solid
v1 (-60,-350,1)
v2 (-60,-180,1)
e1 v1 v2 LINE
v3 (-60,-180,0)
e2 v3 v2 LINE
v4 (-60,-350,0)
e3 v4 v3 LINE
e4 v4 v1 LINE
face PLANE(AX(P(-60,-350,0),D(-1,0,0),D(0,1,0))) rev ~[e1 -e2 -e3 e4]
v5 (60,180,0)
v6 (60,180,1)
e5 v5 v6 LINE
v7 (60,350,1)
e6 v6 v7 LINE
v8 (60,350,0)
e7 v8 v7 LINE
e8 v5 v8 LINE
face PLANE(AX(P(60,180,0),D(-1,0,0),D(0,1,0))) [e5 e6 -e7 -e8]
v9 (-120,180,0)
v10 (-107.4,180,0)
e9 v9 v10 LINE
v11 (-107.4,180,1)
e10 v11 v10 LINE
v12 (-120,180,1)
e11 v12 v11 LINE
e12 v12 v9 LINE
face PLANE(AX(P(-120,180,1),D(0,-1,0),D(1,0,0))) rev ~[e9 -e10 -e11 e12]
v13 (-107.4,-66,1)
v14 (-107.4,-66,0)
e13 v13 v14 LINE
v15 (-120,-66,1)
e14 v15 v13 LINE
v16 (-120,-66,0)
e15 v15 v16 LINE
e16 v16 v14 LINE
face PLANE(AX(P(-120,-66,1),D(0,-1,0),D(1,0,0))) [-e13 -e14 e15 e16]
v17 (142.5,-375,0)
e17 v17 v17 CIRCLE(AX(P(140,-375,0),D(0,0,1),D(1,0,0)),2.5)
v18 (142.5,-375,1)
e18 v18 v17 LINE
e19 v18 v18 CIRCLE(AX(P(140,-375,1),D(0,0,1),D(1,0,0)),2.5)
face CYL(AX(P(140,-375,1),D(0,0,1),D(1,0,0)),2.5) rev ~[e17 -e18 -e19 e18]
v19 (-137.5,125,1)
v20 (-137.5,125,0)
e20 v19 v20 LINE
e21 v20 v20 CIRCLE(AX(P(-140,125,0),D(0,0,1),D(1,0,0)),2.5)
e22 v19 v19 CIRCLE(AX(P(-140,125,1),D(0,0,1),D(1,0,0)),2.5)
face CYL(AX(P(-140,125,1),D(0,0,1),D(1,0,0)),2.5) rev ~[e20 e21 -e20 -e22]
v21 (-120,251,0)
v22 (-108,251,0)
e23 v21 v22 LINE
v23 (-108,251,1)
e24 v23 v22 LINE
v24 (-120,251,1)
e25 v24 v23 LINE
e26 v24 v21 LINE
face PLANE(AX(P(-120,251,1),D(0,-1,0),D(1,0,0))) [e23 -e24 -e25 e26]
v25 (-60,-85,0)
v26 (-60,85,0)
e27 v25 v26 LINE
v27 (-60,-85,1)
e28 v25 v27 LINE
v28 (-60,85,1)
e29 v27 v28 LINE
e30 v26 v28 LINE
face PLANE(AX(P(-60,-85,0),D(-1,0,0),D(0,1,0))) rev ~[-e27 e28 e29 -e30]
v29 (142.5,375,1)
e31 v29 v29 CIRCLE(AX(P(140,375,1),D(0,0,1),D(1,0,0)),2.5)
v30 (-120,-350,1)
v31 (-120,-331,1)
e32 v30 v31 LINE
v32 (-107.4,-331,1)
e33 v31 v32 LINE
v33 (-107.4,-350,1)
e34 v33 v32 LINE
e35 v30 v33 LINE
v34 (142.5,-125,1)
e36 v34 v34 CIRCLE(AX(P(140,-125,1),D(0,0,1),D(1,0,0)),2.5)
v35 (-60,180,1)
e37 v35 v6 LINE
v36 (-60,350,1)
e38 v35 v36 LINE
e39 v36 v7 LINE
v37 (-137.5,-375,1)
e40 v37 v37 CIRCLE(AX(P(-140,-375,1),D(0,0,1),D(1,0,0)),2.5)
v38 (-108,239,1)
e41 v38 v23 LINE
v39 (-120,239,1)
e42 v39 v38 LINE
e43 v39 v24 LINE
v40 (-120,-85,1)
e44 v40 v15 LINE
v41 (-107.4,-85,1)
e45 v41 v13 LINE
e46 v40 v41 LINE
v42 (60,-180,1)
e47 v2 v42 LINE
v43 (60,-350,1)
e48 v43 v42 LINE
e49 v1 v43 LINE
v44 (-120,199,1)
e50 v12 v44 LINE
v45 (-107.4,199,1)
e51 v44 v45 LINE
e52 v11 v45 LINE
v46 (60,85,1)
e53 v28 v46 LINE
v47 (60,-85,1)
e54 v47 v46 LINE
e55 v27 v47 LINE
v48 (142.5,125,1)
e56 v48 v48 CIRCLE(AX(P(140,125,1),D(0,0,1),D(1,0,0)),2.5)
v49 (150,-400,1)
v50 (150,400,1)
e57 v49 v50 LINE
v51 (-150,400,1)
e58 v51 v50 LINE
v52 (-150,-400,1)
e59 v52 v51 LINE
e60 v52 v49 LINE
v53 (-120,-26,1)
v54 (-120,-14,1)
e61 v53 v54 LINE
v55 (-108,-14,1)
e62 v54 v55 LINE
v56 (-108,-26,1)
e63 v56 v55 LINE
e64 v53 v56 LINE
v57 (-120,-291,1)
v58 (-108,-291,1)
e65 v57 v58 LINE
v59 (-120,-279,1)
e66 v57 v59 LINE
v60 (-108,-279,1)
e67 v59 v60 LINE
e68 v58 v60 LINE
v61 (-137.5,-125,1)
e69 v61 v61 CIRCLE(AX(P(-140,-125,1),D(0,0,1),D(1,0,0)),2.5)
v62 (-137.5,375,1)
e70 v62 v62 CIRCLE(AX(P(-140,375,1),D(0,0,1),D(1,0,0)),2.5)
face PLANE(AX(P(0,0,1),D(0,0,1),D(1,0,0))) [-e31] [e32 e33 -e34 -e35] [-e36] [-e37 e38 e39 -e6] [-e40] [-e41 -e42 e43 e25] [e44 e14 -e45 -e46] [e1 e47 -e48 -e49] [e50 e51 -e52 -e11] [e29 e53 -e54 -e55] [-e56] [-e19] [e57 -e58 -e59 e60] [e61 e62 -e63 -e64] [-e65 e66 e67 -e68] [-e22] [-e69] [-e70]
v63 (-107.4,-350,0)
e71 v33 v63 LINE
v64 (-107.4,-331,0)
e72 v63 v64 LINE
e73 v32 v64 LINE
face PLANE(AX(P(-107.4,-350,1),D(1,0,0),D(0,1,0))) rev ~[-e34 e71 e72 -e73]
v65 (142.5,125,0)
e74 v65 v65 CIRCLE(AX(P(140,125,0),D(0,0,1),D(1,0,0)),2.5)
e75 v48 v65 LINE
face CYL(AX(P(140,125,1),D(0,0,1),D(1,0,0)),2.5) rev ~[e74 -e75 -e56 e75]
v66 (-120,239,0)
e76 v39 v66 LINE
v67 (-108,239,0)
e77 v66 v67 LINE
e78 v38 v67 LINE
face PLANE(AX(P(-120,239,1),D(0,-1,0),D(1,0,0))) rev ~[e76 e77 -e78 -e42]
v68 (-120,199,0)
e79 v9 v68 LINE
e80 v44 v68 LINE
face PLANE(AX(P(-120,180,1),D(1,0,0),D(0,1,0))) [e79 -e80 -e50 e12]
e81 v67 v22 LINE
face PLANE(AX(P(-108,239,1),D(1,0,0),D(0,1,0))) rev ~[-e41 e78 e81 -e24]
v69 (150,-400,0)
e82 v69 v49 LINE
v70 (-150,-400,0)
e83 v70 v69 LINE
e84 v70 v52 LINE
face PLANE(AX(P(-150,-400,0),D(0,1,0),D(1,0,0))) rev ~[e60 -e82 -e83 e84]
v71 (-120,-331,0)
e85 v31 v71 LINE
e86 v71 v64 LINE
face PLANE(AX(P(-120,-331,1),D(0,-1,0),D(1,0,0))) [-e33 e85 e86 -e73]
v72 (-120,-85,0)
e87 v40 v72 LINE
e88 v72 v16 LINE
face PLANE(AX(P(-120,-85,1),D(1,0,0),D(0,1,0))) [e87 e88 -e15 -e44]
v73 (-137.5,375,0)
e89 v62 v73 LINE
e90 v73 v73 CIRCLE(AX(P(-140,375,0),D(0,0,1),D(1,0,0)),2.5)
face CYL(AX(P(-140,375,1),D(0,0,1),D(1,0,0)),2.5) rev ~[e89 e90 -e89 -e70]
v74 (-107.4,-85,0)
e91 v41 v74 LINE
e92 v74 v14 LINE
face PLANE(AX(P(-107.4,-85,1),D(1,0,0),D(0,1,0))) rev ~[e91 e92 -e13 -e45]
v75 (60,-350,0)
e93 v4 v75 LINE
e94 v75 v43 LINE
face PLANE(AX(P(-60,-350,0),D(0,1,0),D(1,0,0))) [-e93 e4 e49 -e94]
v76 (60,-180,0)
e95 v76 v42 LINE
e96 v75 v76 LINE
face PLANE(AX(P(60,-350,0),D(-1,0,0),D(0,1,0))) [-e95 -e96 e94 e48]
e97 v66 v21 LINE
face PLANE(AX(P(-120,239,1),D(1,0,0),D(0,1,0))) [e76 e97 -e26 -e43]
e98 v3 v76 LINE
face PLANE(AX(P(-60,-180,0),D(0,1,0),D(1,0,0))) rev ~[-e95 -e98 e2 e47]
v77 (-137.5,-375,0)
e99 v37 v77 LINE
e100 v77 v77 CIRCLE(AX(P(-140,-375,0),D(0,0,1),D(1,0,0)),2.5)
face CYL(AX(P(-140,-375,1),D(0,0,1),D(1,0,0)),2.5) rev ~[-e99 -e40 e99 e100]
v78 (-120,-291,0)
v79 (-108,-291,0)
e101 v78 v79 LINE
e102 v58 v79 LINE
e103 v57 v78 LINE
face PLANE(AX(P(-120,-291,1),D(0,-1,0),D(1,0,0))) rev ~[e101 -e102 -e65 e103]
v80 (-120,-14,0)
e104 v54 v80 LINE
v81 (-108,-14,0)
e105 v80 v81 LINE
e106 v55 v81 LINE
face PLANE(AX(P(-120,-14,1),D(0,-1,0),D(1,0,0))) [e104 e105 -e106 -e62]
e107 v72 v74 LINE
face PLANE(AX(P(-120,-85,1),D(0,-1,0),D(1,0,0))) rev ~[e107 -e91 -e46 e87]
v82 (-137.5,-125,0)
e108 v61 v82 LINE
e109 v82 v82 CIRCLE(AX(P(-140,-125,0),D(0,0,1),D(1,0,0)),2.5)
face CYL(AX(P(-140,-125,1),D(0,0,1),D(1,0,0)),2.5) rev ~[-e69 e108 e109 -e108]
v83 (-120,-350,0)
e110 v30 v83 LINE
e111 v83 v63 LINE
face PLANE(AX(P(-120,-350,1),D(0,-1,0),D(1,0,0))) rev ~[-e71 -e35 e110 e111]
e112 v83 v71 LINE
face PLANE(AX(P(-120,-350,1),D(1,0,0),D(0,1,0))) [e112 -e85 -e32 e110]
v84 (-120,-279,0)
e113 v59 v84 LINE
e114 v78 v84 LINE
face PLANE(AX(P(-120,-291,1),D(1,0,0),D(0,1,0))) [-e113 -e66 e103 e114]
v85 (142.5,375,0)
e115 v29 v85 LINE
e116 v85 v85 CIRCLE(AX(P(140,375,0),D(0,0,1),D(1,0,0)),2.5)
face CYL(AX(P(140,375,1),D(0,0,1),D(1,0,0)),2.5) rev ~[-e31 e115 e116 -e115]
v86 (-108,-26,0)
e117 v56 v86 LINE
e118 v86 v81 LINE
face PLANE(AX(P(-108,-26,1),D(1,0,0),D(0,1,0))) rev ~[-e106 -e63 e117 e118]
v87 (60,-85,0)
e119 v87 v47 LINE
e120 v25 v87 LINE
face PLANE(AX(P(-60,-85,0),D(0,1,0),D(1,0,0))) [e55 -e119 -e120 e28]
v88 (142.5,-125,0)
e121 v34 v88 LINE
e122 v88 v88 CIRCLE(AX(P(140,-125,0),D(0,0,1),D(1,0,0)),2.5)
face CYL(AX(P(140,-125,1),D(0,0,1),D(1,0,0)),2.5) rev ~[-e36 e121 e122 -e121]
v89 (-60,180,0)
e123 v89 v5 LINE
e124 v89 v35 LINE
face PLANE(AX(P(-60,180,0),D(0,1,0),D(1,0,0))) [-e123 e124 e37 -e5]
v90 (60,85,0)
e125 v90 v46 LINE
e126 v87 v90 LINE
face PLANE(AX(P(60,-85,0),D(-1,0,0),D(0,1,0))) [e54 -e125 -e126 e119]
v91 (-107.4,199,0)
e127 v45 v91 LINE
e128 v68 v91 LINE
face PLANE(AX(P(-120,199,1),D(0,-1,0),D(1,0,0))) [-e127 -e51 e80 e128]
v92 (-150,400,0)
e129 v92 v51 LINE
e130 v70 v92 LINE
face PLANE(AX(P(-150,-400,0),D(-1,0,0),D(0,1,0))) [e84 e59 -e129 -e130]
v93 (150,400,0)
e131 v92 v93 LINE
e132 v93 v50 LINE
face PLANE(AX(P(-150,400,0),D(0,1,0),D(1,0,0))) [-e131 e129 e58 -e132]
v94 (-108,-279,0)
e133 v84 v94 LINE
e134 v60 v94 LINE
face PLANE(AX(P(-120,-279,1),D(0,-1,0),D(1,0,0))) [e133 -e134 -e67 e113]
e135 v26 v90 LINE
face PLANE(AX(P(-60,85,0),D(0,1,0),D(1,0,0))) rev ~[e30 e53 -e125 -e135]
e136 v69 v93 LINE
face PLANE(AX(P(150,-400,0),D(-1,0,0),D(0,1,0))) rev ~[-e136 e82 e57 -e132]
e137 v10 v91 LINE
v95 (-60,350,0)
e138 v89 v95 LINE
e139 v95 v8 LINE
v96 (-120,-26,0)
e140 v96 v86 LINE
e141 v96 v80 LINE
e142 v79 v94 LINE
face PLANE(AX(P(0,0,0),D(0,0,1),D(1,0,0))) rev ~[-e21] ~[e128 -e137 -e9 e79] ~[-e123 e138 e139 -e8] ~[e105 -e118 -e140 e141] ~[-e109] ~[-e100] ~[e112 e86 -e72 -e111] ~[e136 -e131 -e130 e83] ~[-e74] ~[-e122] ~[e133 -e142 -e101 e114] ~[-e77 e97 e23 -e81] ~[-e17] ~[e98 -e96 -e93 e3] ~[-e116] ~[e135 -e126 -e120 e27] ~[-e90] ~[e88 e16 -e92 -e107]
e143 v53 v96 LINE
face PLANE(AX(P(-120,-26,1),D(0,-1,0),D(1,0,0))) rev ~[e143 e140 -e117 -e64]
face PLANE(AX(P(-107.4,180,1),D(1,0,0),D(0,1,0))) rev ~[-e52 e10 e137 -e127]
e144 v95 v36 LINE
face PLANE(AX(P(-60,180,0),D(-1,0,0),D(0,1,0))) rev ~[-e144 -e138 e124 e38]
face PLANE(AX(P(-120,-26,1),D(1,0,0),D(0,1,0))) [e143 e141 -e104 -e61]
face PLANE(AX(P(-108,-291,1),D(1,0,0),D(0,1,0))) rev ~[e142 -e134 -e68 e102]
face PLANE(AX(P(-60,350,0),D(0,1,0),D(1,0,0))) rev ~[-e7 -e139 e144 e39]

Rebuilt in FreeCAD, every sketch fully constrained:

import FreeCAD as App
import Part
import Sketcher

V = App.Vector

doc = App.newDocument("Part")
body = doc.addObject("PartDesign::Body", "Body")

# Sketch on XY plane
sketch1 = body.newObject("Sketcher::SketchObject", "Sketch")
sketch1.AttachmentSupport = (doc.getObject("XY_Plane"), [""])
sketch1.MapMode = "FlatFace"
sketch1.addGeometry([
    Part.LineSegment(V(-150, 400, 0), V(-150, -400, 0)),  # 0
    Part.LineSegment(V(-150, -400, 0), V(150, -400, 0)),  # 1
    Part.LineSegment(V(150, -400, 0), V(150, 400, 0)),  # 2
    Part.LineSegment(V(150, 400, 0), V(-150, 400, 0)),  # 3
    Part.LineSegment(V(60, -350, 0), V(-60, -350, 0)),  # 4
    Part.LineSegment(V(-60, -350, 0), V(-60, -180, 0)),  # 5
    Part.LineSegment(V(-60, -180, 0), V(60, -180, 0)),  # 6
    Part.LineSegment(V(60, -180, 0), V(60, -350, 0)),  # 7
    Part.LineSegment(V(60, -85, 0), V(-60, -85, 0)),  # 8
    Part.LineSegment(V(-60, -85, 0), V(-60, 85, 0)),  # 9
    Part.LineSegment(V(-60, 85, 0), V(60, 85, 0)),  # 10
    Part.LineSegment(V(60, 85, 0), V(60, -85, 0)),  # 11
    Part.LineSegment(V(60, 180, 0), V(-60, 180, 0)),  # 12
    Part.LineSegment(V(-60, 180, 0), V(-60, 350, 0)),  # 13
    Part.LineSegment(V(-60, 350, 0), V(60, 350, 0)),  # 14
    Part.LineSegment(V(60, 350, 0), V(60, 180, 0)),  # 15
], False)
sketch1.addConstraint([
    Sketcher.Constraint("Coincident", 0, 2, 1, 1),
    Sketcher.Constraint("Coincident", 1, 2, 2, 1),
    Sketcher.Constraint("Coincident", 2, 2, 3, 1),
    Sketcher.Constraint("Coincident", 3, 2, 0, 1),
    Sketcher.Constraint("Coincident", 4, 2, 5, 1),
    Sketcher.Constraint("Coincident", 5, 2, 6, 1),
    Sketcher.Constraint("Coincident", 6, 2, 7, 1),
    Sketcher.Constraint("Coincident", 7, 2, 4, 1),
    Sketcher.Constraint("Coincident", 8, 2, 9, 1),
    Sketcher.Constraint("Coincident", 9, 2, 10, 1),
    Sketcher.Constraint("Coincident", 10, 2, 11, 1),
    Sketcher.Constraint("Coincident", 11, 2, 8, 1),
    Sketcher.Constraint("Coincident", 12, 2, 13, 1),
    Sketcher.Constraint("Coincident", 13, 2, 14, 1),
    Sketcher.Constraint("Coincident", 14, 2, 15, 1),
    Sketcher.Constraint("Coincident", 15, 2, 12, 1),
    Sketcher.Constraint("Vertical", 0),
    Sketcher.Constraint("Horizontal", 1),
    Sketcher.Constraint("Vertical", 2),
    Sketcher.Constraint("Horizontal", 3),
    Sketcher.Constraint("Horizontal", 4),
    Sketcher.Constraint("Vertical", 5),
    Sketcher.Constraint("Horizontal", 6),
    Sketcher.Constraint("Vertical", 7),
    Sketcher.Constraint("Horizontal", 8),
    Sketcher.Constraint("Vertical", 9),
    Sketcher.Constraint("Horizontal", 10),
    Sketcher.Constraint("Vertical", 11),
    Sketcher.Constraint("Horizontal", 12),
    Sketcher.Constraint("Vertical", 13),
    Sketcher.Constraint("Horizontal", 14),
    Sketcher.Constraint("Vertical", 15),
    Sketcher.Constraint("Symmetric", 0, 2, 2, 2, -1, 1),
    Sketcher.Constraint("Symmetric", 8, 2, 10, 2, -1, 1),
    Sketcher.Constraint("Symmetric", 6, 2, 12, 2, -1, 1),
    Sketcher.Constraint("Symmetric", 4, 2, 14, 2, -1, 1),
    Sketcher.Constraint("Vertical", 5, 2, 8, 2),
    Sketcher.Constraint("Vertical", 7, 2, 10, 2),
    Sketcher.Constraint("Equal", 7, 9),
    Sketcher.Constraint("DistanceX", 1, 1, 1, 2, 300.0),
    Sketcher.Constraint("DistanceX", 4, 2, 4, 1, 120.0),
    Sketcher.Constraint("DistanceY", 0, 2, 0, 1, 800.0),
    Sketcher.Constraint("DistanceY", 5, 1, 5, 2, 170.0),
    Sketcher.Constraint("DistanceY", 4, 2, -1, 1, 350.0),
])
pad1 = body.newObject("PartDesign::Pad", "Pad")
pad1.Profile = sketch1
pad1.Length = 1

# Sketch on XY plane
sketch2 = body.newObject("Sketcher::SketchObject", "Sketch001")
sketch2.AttachmentSupport = (doc.getObject("XY_Plane"), [""])
sketch2.MapMode = "FlatFace"
sketch2.AttachmentOffset = App.Placement(V(0, 0, 1), App.Rotation())
sketch2.addGeometry([
    Part.Circle(V(140, 375, 0), V(0, 0, 1), 2.5),  # 0
    Part.Circle(V(-140, 375, 0), V(0, 0, 1), 2.5),  # 1
    Part.Circle(V(-140, 125, 0), V(0, 0, 1), 2.5),  # 2
    Part.Circle(V(-140, -125, 0), V(0, 0, 1), 2.5),  # 3
    Part.Circle(V(-140, -375, 0), V(0, 0, 1), 2.5),  # 4
    Part.Circle(V(140, 125, 0), V(0, 0, 1), 2.5),  # 5
    Part.Circle(V(140, -125, 0), V(0, 0, 1), 2.5),  # 6
    Part.Circle(V(140, -375, 0), V(0, 0, 1), 2.5),  # 7
], False)
sketch2.addConstraint([
    Sketcher.Constraint("Equal", 0, 1),
    Sketcher.Constraint("Equal", 1, 2),
    Sketcher.Constraint("Equal", 2, 3),
    Sketcher.Constraint("Equal", 3, 4),
    Sketcher.Constraint("Equal", 4, 5),
    Sketcher.Constraint("Equal", 5, 6),
    Sketcher.Constraint("Equal", 6, 7),
    Sketcher.Constraint("Symmetric", 0, 3, 4, 3, -1, 1),
    Sketcher.Constraint("Symmetric", 3, 3, 5, 3, -1, 1),
    Sketcher.Constraint("Symmetric", 2, 3, 6, 3, -1, 1),
    Sketcher.Constraint("Symmetric", 1, 3, 7, 3, -1, 1),
    Sketcher.Constraint("Symmetric", 0, 3, 1, 3, -2),
    Sketcher.Constraint("Symmetric", 2, 3, 5, 3, -2),
    Sketcher.Constraint("Vertical", 1, 3, 2, 3),
    Sketcher.Constraint("Diameter", 0, 5.0),
    Sketcher.Constraint("DistanceX", -1, 1, 0, 3, 140.0),
    Sketcher.Constraint("DistanceY", -1, 1, 0, 3, 375.0),
    Sketcher.Constraint("DistanceY", -1, 1, 2, 3, 125.0),
])
pocket1 = body.newObject("PartDesign::Pocket", "Pocket")
pocket1.Profile = sketch2
pocket1.Length = 10

# Sketch on XY plane
sketch3 = body.newObject("Sketcher::SketchObject", "Sketch002")
sketch3.AttachmentSupport = (doc.getObject("XY_Plane"), [""])
sketch3.MapMode = "FlatFace"
sketch3.AttachmentOffset = App.Placement(V(0, 0, 1), App.Rotation())
sketch3.addGeometry([
    Part.LineSegment(V(-120, 199, 0), V(-120, 180, 0)),  # 0
    Part.LineSegment(V(-120, 180, 0), V(-107, 180, 0)),  # 1
    Part.LineSegment(V(-107, 180, 0), V(-107, 199, 0)),  # 2
    Part.LineSegment(V(-107, 199, 0), V(-120, 199, 0)),  # 3
    Part.LineSegment(V(-120, -66, 0), V(-120, -85, 0)),  # 4
    Part.LineSegment(V(-120, -85, 0), V(-107, -85, 0)),  # 5
    Part.LineSegment(V(-107, -85, 0), V(-107, -66, 0)),  # 6
    Part.LineSegment(V(-107, -66, 0), V(-120, -66, 0)),  # 7
    Part.LineSegment(V(-120, -331, 0), V(-120, -350, 0)),  # 8
    Part.LineSegment(V(-120, -350, 0), V(-107, -350, 0)),  # 9
    Part.LineSegment(V(-107, -350, 0), V(-107, -331, 0)),  # 10
    Part.LineSegment(V(-107, -331, 0), V(-120, -331, 0)),  # 11
    Part.LineSegment(V(-120, -14, 0), V(-120, -26, 0)),  # 12
    Part.LineSegment(V(-120, -26, 0), V(-108, -26, 0)),  # 13
    Part.LineSegment(V(-108, -26, 0), V(-108, -14, 0)),  # 14
    Part.LineSegment(V(-108, -14, 0), V(-120, -14, 0)),  # 15
    Part.LineSegment(V(-120, 251, 0), V(-120, 239, 0)),  # 16
    Part.LineSegment(V(-120, 239, 0), V(-108, 239, 0)),  # 17
    Part.LineSegment(V(-108, 239, 0), V(-108, 251, 0)),  # 18
    Part.LineSegment(V(-108, 251, 0), V(-120, 251, 0)),  # 19
    Part.LineSegment(V(-120, -279, 0), V(-120, -291, 0)),  # 20
    Part.LineSegment(V(-120, -291, 0), V(-108, -291, 0)),  # 21
    Part.LineSegment(V(-108, -291, 0), V(-108, -279, 0)),  # 22
    Part.LineSegment(V(-108, -279, 0), V(-120, -279, 0)),  # 23
], False)
sketch3.addConstraint([
    Sketcher.Constraint("Coincident", 0, 2, 1, 1),
    Sketcher.Constraint("Coincident", 1, 2, 2, 1),
    Sketcher.Constraint("Coincident", 2, 2, 3, 1),
    Sketcher.Constraint("Coincident", 3, 2, 0, 1),
    Sketcher.Constraint("Coincident", 4, 2, 5, 1),
    Sketcher.Constraint("Coincident", 5, 2, 6, 1),
    Sketcher.Constraint("Coincident", 6, 2, 7, 1),
    Sketcher.Constraint("Coincident", 7, 2, 4, 1),
    Sketcher.Constraint("Coincident", 8, 2, 9, 1),
    Sketcher.Constraint("Coincident", 9, 2, 10, 1),
    Sketcher.Constraint("Coincident", 10, 2, 11, 1),
    Sketcher.Constraint("Coincident", 11, 2, 8, 1),
    Sketcher.Constraint("Coincident", 12, 2, 13, 1),
    Sketcher.Constraint("Coincident", 13, 2, 14, 1),
    Sketcher.Constraint("Coincident", 14, 2, 15, 1),
    Sketcher.Constraint("Coincident", 15, 2, 12, 1),
    Sketcher.Constraint("Coincident", 16, 2, 17, 1),
    Sketcher.Constraint("Coincident", 17, 2, 18, 1),
    Sketcher.Constraint("Coincident", 18, 2, 19, 1),
    Sketcher.Constraint("Coincident", 19, 2, 16, 1),
    Sketcher.Constraint("Coincident", 20, 2, 21, 1),
    Sketcher.Constraint("Coincident", 21, 2, 22, 1),
    Sketcher.Constraint("Coincident", 22, 2, 23, 1),
    Sketcher.Constraint("Coincident", 23, 2, 20, 1),
    Sketcher.Constraint("Vertical", 0),
    Sketcher.Constraint("Horizontal", 1),
    Sketcher.Constraint("Vertical", 2),
    Sketcher.Constraint("Horizontal", 3),
    Sketcher.Constraint("Vertical", 4),
    Sketcher.Constraint("Horizontal", 5),
    Sketcher.Constraint("Vertical", 6),
    Sketcher.Constraint("Horizontal", 7),
    Sketcher.Constraint("Vertical", 8),
    Sketcher.Constraint("Horizontal", 9),
    Sketcher.Constraint("Vertical", 10),
    Sketcher.Constraint("Horizontal", 11),
    Sketcher.Constraint("Vertical", 12),
    Sketcher.Constraint("Horizontal", 13),
    Sketcher.Constraint("Vertical", 14),
    Sketcher.Constraint("Horizontal", 15),
    Sketcher.Constraint("Vertical", 16),
    Sketcher.Constraint("Horizontal", 17),
    Sketcher.Constraint("Vertical", 18),
    Sketcher.Constraint("Horizontal", 19),
    Sketcher.Constraint("Vertical", 20),
    Sketcher.Constraint("Horizontal", 21),
    Sketcher.Constraint("Vertical", 22),
    Sketcher.Constraint("Horizontal", 23),
    Sketcher.Constraint("Vertical", 3, 2, 4, 2),
    Sketcher.Constraint("Vertical", 2, 2, 5, 2),
    Sketcher.Constraint("Vertical", 7, 2, 8, 2),
    Sketcher.Constraint("Vertical", 6, 2, 9, 2),
    Sketcher.Constraint("Vertical", 11, 2, 12, 2),
    Sketcher.Constraint("Vertical", 15, 2, 16, 2),
    Sketcher.Constraint("Vertical", 14, 2, 17, 2),
    Sketcher.Constraint("Vertical", 19, 2, 20, 2),
    Sketcher.Constraint("Vertical", 18, 2, 21, 2),
    Sketcher.Constraint("Equal", 2, 4),
    Sketcher.Constraint("Equal", 6, 8),
    Sketcher.Constraint("Equal", 23, 12),
    Sketcher.Constraint("Equal", 14, 16),
    Sketcher.Constraint("Equal", 18, 20),
    Sketcher.Constraint("DistanceX", 13, 1, 13, 2, 12.0),
    Sketcher.Constraint("DistanceY", 0, 2, 0, 1, 19.0),
    Sketcher.Constraint("DistanceX", 1, 1, 1, 2, 12.6),
    Sketcher.Constraint("DistanceX", 0, 2, -1, 1, 120.0),
    Sketcher.Constraint("DistanceY", -1, 1, 0, 2, 180.0),
    Sketcher.Constraint("DistanceY", 4, 2, -1, 1, 85.0),
    Sketcher.Constraint("DistanceY", 8, 2, -1, 1, 350.0),
    Sketcher.Constraint("DistanceY", 12, 2, -1, 1, 26.0),
    Sketcher.Constraint("DistanceY", -1, 1, 16, 2, 239.0),
    Sketcher.Constraint("DistanceY", 20, 2, -1, 1, 291.0),
])
pocket2 = body.newObject("PartDesign::Pocket", "Pocket001")
pocket2.Profile = sketch3
pocket2.Length = 10

doc.recompute()
